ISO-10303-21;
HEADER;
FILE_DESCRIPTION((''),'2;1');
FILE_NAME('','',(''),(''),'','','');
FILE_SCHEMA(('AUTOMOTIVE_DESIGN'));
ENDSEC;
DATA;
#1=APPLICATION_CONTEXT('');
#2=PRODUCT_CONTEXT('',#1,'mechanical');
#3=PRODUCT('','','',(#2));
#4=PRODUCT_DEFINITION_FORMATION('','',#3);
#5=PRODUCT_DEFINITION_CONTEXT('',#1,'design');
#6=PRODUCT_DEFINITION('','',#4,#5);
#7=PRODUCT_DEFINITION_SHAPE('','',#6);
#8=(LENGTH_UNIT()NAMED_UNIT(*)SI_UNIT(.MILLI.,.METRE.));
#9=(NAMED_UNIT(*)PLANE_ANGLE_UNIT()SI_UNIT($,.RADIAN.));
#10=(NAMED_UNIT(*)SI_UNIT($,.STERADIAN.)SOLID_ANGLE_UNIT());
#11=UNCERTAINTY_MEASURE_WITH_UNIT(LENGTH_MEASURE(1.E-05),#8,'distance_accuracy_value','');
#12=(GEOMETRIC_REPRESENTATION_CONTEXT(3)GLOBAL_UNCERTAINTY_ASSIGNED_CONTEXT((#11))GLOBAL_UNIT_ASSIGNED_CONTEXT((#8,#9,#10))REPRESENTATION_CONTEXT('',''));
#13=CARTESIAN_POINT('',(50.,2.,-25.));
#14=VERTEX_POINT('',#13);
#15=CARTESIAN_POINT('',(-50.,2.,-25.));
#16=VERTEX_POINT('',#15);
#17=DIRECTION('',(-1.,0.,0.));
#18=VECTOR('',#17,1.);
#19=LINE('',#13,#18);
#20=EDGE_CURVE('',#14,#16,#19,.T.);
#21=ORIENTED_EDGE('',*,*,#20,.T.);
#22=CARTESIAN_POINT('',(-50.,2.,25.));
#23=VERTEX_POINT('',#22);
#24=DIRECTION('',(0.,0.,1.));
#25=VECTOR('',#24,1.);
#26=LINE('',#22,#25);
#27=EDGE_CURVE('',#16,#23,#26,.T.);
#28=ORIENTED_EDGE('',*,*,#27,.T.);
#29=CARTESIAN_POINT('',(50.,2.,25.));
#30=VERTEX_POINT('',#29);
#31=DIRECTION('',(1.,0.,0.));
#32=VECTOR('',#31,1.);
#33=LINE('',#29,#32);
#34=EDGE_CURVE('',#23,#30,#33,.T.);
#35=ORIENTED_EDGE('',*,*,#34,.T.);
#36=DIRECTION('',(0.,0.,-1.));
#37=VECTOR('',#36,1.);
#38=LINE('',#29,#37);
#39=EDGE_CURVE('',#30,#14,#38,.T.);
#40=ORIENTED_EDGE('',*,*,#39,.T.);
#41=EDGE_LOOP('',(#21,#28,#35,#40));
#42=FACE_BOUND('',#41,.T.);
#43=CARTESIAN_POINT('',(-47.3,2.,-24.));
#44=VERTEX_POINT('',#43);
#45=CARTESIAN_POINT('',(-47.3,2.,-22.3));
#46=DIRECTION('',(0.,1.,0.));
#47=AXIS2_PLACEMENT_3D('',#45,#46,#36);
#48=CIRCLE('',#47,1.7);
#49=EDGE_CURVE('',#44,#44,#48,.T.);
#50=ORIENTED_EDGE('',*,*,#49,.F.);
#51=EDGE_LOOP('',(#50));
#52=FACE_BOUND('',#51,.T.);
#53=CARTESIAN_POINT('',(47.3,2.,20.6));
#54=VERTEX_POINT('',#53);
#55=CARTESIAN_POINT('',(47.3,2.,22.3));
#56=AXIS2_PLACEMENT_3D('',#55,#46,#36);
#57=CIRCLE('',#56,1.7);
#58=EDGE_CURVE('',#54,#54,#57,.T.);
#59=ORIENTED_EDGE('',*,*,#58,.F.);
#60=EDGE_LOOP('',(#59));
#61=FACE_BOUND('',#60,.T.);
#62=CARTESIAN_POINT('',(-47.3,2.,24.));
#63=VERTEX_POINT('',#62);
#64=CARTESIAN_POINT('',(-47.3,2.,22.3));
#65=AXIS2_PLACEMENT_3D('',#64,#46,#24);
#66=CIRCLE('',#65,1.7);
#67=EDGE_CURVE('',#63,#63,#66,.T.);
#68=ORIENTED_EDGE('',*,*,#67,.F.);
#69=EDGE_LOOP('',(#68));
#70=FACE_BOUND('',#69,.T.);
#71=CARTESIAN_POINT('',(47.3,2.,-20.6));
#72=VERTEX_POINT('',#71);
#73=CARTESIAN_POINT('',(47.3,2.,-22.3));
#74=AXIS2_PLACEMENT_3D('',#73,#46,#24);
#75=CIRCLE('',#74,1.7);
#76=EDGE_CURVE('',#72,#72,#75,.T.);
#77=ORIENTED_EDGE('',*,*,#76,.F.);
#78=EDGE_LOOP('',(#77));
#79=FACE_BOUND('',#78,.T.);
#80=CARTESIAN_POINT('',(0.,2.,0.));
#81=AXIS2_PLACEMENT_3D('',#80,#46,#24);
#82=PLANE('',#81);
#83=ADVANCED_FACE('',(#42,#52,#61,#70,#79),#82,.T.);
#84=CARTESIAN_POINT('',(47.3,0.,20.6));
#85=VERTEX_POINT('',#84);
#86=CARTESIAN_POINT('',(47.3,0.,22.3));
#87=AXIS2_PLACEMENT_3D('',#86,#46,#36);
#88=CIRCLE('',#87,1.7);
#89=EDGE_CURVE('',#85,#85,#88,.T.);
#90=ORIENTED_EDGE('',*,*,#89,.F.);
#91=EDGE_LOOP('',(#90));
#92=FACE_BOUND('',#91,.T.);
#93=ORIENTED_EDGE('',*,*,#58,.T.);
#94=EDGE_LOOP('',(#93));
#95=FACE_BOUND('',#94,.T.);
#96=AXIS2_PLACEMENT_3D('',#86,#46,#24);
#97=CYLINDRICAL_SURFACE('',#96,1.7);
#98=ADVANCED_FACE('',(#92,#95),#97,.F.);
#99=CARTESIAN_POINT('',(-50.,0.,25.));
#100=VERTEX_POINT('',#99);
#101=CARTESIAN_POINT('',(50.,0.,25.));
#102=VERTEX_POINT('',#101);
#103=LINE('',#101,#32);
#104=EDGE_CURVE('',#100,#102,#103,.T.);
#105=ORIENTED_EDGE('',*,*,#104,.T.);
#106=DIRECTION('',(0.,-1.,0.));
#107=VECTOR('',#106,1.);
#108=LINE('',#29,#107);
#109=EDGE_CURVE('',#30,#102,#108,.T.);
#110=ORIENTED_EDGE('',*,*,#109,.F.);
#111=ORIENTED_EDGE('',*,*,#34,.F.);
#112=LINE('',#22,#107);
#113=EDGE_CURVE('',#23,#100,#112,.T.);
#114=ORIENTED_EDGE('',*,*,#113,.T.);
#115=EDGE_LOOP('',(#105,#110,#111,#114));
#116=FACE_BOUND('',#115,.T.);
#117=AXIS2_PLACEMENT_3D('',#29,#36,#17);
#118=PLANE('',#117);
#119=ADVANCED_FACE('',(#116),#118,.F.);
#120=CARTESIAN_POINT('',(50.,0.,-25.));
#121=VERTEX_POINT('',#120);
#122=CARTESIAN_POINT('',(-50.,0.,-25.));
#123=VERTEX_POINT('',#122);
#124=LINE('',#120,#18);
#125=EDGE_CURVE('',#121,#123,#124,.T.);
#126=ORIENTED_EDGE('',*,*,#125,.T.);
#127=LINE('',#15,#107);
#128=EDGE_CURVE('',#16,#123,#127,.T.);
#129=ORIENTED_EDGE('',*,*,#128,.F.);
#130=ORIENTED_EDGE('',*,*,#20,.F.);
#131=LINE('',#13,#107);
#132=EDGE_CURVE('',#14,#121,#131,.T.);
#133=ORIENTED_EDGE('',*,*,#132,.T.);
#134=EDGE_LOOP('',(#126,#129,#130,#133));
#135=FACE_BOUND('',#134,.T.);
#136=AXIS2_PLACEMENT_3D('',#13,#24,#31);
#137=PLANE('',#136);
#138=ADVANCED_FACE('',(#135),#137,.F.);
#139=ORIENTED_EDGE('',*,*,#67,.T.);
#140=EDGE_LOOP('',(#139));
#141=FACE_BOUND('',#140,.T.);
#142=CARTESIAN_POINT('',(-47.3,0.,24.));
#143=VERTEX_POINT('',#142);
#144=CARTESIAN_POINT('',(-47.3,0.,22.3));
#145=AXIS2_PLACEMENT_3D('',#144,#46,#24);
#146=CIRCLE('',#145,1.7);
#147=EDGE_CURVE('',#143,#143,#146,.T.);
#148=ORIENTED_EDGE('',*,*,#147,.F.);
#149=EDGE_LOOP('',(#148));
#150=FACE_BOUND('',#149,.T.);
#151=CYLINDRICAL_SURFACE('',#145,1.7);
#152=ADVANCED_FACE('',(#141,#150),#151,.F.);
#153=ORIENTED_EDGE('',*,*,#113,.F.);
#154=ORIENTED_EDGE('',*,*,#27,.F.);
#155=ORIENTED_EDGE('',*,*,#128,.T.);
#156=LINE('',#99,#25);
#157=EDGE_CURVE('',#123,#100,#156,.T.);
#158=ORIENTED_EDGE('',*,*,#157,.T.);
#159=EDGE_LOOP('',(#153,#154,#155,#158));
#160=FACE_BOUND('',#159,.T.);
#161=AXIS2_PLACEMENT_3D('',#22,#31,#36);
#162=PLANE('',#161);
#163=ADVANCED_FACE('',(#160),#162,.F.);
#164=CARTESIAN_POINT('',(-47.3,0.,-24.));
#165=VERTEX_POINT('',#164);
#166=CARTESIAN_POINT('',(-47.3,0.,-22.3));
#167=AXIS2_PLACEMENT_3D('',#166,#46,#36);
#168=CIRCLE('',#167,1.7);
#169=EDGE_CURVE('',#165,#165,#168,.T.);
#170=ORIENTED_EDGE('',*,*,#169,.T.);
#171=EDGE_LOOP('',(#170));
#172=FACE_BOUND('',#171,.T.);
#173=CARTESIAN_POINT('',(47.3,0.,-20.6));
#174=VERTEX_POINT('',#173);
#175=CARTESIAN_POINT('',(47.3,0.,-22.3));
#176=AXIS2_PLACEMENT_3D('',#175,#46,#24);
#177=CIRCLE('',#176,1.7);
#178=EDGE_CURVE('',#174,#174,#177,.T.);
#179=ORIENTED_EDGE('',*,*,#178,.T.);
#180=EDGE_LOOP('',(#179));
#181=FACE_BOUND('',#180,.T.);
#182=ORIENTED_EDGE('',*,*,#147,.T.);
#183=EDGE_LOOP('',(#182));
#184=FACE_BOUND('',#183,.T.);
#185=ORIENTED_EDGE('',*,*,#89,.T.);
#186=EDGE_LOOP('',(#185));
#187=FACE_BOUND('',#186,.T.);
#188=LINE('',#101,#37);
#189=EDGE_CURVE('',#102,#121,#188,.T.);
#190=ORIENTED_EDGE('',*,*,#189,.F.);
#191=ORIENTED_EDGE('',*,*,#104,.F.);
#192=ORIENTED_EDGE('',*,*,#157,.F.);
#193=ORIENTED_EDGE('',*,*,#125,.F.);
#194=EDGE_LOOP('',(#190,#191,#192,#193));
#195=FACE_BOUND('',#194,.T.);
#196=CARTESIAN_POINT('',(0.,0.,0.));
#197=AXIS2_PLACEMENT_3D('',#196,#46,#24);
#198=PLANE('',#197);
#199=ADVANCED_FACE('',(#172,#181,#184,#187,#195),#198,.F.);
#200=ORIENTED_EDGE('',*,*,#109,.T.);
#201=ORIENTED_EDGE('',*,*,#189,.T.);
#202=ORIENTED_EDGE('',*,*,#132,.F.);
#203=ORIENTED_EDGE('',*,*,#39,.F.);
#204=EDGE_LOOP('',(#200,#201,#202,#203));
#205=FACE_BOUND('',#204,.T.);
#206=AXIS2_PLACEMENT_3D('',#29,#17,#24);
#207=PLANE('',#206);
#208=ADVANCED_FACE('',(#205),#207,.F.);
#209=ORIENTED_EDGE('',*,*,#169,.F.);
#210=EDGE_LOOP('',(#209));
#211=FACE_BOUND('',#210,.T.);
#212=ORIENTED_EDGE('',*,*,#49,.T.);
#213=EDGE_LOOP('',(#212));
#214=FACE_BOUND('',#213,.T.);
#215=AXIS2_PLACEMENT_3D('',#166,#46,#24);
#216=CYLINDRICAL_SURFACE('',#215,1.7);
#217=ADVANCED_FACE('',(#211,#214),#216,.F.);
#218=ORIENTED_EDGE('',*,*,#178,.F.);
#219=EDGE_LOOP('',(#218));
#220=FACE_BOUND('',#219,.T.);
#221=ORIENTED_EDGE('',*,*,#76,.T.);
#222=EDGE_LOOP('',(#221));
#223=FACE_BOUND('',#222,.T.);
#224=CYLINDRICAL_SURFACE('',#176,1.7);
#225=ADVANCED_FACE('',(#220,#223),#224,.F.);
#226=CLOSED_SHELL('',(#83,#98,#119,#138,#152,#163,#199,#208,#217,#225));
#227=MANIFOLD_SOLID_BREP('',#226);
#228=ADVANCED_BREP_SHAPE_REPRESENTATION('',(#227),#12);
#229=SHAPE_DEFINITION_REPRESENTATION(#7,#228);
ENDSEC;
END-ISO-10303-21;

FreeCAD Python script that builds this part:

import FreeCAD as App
import Part
import Sketcher

V = App.Vector

doc = App.newDocument("Part")
body = doc.addObject("PartDesign::Body", "Body")

sketch1 = doc.addObject("Sketcher::SketchObject", "Sketch")
body.addObject(sketch1)
sketch1.AttachmentSupport = (doc.XZ_Plane, [""])
sketch1.MapMode = "FlatFace"
sketch1.addGeometry(Part.LineSegment(V(-50, -25, 0), V(-50, 25, 0)), False)
sketch1.addGeometry(Part.LineSegment(V(-50, 25, 0), V(50, 25, 0)), False)
sketch1.addGeometry(Part.LineSegment(V(50, 25, 0), V(50, -25, 0)), False)
sketch1.addGeometry(Part.LineSegment(V(50, -25, 0), V(-50, -25, 0)), False)
sketch1.addConstraint(Sketcher.Constraint("Coincident", 0, 2, 1, 1))
sketch1.addConstraint(Sketcher.Constraint("Coincident", 1, 2, 2, 1))
sketch1.addConstraint(Sketcher.Constraint("Coincident", 2, 2, 3, 1))
sketch1.addConstraint(Sketcher.Constraint("Coincident", 3, 2, 0, 1))
sketch1.addConstraint(Sketcher.Constraint("Vertical", 0))
sketch1.addConstraint(Sketcher.Constraint("Horizontal", 1))
sketch1.addConstraint(Sketcher.Constraint("Vertical", 2))
sketch1.addConstraint(Sketcher.Constraint("Horizontal", 3))
sketch1.addConstraint(Sketcher.Constraint("Symmetric", 0, 2, 2, 2, -1, 1))
sketch1.addConstraint(Sketcher.Constraint("DistanceX", 1, 1, 1, 2, 100.0))
sketch1.addConstraint(Sketcher.Constraint("DistanceY", 0, 1, 0, 2, 50.0))
pad1 = doc.addObject("PartDesign::Pad", "Pad")
body.addObject(pad1)
pad1.Profile = sketch1
pad1.Length = 2
pad1.Reversed = True

sketch2 = doc.addObject("Sketcher::SketchObject", "Sketch001")
body.addObject(sketch2)
sketch2.AttachmentSupport = (doc.XZ_Plane, [""])
sketch2.MapMode = "FlatFace"
sketch2.AttachmentOffset = App.Placement(V(0, 0, -2), App.Rotation())
sketch2.addGeometry(Part.Circle(V(47.3, -22.3, 0), V(0, 0, 1), 1.7), False)
sketch2.addGeometry(Part.Circle(V(47.3, 22.3, 0), V(0, 0, 1), 1.7), False)
sketch2.addGeometry(Part.Circle(V(-47.3, 22.3, 0), V(0, 0, 1), 1.7), False)
sketch2.addGeometry(Part.Circle(V(-47.3, -22.3, 0), V(0, 0, 1), 1.7), False)
sketch2.addConstraint(Sketcher.Constraint("Equal", 0, 1))
sketch2.addConstraint(Sketcher.Constraint("Equal", 1, 2))
sketch2.addConstraint(Sketcher.Constraint("Equal", 2, 3))
sketch2.addConstraint(Sketcher.Constraint("Symmetric", 0, 3, 2, 3, -1, 1))
sketch2.addConstraint(Sketcher.Constraint("Symmetric", 1, 3, 3, 3, -1, 1))
sketch2.addConstraint(Sketcher.Constraint("Symmetric", 1, 3, 2, 3, -2))
sketch2.addConstraint(Sketcher.Constraint("Diameter", 0, 3.4))
sketch2.addConstraint(Sketcher.Constraint("DistanceX", -1, 1, 0, 3, 47.3))
sketch2.addConstraint(Sketcher.Constraint("DistanceY", 0, 3, -1, 1, 22.3))
pocket1 = doc.addObject("PartDesign::Pocket", "Pocket")
body.addObject(pocket1)
pocket1.Profile = sketch2
pocket1.Type = "ThroughAll"
pocket1.Reversed = True

doc.recompute()
